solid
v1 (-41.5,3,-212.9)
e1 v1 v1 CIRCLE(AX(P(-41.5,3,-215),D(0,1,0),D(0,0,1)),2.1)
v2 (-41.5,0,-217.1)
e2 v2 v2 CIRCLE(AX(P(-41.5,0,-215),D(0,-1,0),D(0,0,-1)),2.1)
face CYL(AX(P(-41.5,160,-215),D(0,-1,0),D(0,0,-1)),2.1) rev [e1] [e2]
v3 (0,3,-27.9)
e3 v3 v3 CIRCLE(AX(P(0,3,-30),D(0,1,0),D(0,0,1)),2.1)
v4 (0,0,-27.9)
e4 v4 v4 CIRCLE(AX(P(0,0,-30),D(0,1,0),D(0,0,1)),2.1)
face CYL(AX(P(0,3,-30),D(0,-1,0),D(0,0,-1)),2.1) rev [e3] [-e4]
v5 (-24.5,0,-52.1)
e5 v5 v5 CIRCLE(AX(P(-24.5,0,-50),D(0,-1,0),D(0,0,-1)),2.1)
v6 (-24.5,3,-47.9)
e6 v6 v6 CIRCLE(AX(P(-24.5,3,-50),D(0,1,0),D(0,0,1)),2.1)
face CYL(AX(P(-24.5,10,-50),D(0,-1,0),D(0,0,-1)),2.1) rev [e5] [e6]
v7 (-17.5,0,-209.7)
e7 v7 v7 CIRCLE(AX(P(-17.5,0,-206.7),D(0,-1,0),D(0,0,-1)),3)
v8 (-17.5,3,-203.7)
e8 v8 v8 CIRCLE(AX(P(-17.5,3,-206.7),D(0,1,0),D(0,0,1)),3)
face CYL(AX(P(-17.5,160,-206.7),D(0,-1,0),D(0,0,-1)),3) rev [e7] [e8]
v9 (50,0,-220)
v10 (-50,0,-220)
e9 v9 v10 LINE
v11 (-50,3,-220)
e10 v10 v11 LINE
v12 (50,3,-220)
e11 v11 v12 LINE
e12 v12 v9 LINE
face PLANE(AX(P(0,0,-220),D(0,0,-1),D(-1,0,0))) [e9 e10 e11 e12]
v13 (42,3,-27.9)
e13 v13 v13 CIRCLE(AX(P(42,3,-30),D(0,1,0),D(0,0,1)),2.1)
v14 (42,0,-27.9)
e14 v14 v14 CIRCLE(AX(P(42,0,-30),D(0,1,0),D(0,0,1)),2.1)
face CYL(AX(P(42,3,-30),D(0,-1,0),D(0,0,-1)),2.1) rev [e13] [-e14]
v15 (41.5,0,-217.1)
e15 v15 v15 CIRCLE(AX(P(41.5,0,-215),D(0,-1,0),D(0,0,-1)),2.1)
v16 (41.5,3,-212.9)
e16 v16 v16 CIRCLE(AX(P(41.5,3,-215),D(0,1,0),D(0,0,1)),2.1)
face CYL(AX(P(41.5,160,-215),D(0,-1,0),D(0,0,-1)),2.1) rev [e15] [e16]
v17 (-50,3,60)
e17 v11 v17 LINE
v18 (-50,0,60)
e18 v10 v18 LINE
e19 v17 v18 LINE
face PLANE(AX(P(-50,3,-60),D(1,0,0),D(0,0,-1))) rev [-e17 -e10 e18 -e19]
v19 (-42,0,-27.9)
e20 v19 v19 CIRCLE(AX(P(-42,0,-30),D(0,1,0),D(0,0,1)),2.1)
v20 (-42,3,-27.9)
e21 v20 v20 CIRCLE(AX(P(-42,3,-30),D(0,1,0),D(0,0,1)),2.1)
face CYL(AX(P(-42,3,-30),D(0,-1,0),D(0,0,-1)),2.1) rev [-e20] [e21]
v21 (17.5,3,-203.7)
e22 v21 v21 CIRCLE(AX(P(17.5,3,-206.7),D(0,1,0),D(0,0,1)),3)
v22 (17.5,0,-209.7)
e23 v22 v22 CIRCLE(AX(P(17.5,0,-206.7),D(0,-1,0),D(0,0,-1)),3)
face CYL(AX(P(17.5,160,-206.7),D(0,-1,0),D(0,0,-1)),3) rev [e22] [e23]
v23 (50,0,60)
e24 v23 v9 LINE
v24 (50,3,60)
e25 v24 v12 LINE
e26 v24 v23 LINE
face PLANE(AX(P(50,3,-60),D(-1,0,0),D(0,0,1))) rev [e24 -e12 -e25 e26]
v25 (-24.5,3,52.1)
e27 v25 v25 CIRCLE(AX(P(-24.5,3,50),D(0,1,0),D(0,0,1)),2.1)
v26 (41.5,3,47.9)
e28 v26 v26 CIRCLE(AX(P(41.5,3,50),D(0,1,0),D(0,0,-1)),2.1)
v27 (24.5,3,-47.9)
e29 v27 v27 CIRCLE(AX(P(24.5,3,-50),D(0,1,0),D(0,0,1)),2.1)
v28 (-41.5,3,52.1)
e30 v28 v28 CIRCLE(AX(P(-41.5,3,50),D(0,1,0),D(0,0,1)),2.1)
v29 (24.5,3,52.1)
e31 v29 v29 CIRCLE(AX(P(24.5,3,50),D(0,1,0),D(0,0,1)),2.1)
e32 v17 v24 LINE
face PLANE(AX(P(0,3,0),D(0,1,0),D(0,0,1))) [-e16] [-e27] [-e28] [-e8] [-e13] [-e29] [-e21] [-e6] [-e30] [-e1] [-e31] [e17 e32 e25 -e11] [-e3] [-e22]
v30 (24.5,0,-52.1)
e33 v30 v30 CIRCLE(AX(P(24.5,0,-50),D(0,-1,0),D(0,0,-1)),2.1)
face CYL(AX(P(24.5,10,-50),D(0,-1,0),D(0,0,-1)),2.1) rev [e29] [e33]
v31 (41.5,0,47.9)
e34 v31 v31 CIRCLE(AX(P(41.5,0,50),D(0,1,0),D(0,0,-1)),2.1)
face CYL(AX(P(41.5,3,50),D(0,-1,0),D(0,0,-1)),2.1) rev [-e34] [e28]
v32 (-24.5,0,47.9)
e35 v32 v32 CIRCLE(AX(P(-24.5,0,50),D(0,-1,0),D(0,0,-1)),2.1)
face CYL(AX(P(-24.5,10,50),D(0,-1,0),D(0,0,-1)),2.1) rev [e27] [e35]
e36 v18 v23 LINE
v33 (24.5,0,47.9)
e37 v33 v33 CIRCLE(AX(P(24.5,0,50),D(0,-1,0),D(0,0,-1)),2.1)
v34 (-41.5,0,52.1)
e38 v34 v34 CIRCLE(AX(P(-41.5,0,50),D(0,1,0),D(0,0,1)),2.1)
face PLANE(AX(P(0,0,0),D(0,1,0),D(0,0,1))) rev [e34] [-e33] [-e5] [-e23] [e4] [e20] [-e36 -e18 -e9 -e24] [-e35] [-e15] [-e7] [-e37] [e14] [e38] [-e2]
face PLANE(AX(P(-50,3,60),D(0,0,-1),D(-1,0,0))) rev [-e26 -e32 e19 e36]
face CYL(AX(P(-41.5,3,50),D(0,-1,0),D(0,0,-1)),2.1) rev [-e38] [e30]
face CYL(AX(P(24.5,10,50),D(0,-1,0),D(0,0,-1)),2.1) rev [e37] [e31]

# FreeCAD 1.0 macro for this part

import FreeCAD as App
import Part
import Sketcher
Q = App.Units.Quantity

doc = App.newDocument("Part")
body = doc.addObject("PartDesign::Body", "Body")

sketch1 = body.newObject("Sketcher::SketchObject", "Sketch")
sketch1.AttachmentSupport = (doc.getObject("XZ_Plane"), [""])
sketch1.MapMode = "FlatFace"
sketch1.addGeometry(Part.LineSegment(App.Vector(-50, -60, 0), App.Vector(-50, 60, 0)), False)
sketch1.addGeometry(Part.LineSegment(App.Vector(-50, 60, 0), App.Vector(50, 60, 0)), False)
sketch1.addGeometry(Part.LineSegment(App.Vector(50, 60, 0), App.Vector(50, -60, 0)), False)
sketch1.addGeometry(Part.LineSegment(App.Vector(50, -60, 0), App.Vector(-50, -60, 0)), False)
sketch1.addGeometry(Part.Circle(App.Vector(-41.5, 50, 0), App.Vector(0, 0, 1), 2.1), False)
sketch1.addGeometry(Part.Circle(App.Vector(41.5, 50, 0), App.Vector(0, 0, 1), 2.1), False)
sketch1.addGeometry(Part.Circle(App.Vector(-42, -30, 0), App.Vector(0, 0, 1), 2.1), False)
sketch1.addGeometry(Part.Circle(App.Vector(0, -30, 0), App.Vector(0, 0, 1), 2.1), False)
sketch1.addGeometry(Part.Circle(App.Vector(42, -30, 0), App.Vector(0, 0, 1), 2.1), False)
sketch1.addConstraint(Sketcher.Constraint("Coincident", 0, 2, 1, 1))
sketch1.addConstraint(Sketcher.Constraint("Coincident", 1, 2, 2, 1))
sketch1.addConstraint(Sketcher.Constraint("Coincident", 2, 2, 3, 1))
sketch1.addConstraint(Sketcher.Constraint("Coincident", 3, 2, 0, 1))
sketch1.addConstraint(Sketcher.Constraint("Vertical", 0))
sketch1.addConstraint(Sketcher.Constraint("Horizontal", 1))
sketch1.addConstraint(Sketcher.Constraint("Vertical", 2))
sketch1.addConstraint(Sketcher.Constraint("Horizontal", 3))
sketch1.addConstraint(Sketcher.Constraint("Equal", 4, 5))
sketch1.addConstraint(Sketcher.Constraint("Equal", 5, 6))
sketch1.addConstraint(Sketcher.Constraint("Equal", 6, 7))
sketch1.addConstraint(Sketcher.Constraint("Equal", 7, 8))
sketch1.addConstraint(Sketcher.Constraint("Symmetric", 0, 2, 2, 2, -1, 1))
sketch1.addConstraint(Sketcher.Constraint("Symmetric", 4, 3, 5, 3, -2))
sketch1.addConstraint(Sketcher.Constraint("Symmetric", 6, 3, 8, 3, -2))
sketch1.addConstraint(Sketcher.Constraint("PointOnObject", 7, 3, -2))
sketch1.addConstraint(Sketcher.Constraint("Horizontal", 6, 3, 7, 3))
sketch1.addConstraint(Sketcher.Constraint("Diameter", 4, Q("4.2 mm")))
sketch1.addConstraint(Sketcher.Constraint("DistanceX", 1, 1, 1, 2, Q("100 mm")))
sketch1.addConstraint(Sketcher.Constraint("DistanceY", 0, 1, 0, 2, Q("120 mm")))
sketch1.addConstraint(Sketcher.Constraint("DistanceY", -1, 1, 4, 3, Q("50 mm")))
sketch1.addConstraint(Sketcher.Constraint("DistanceX", 6, 3, -1, 1, Q("42 mm")))
sketch1.addConstraint(Sketcher.Constraint("DistanceY", 6, 3, -1, 1, Q("30 mm")))
sketch1.addConstraint(Sketcher.Constraint("DistanceX", 4, 3, 5, 3, Q("83 mm")))
pad1 = body.newObject("PartDesign::Pad", "Pad")
pad1.Profile = sketch1
pad1.Length = 3
pad1.Reversed = True

sketch2 = body.newObject("Sketcher::SketchObject", "Sketch001")
sketch2.AttachmentSupport = (doc.getObject("XZ_Plane"), [""])
sketch2.MapMode = "FlatFace"
sketch2.addGeometry(Part.Circle(App.Vector(-24.5, -50, 0), App.Vector(0, 0, 1), 2.1), False)
sketch2.addGeometry(Part.Circle(App.Vector(24.5, -50, 0), App.Vector(0, 0, 1), 2.1), False)
sketch2.addGeometry(Part.Circle(App.Vector(24.5, 50, 0), App.Vector(0, 0, 1), 2.1), False)
sketch2.addGeometry(Part.Circle(App.Vector(-24.5, 50, 0), App.Vector(0, 0, 1), 2.1), False)
sketch2.addConstraint(Sketcher.Constraint("Equal", 0, 1))
sketch2.addConstraint(Sketcher.Constraint("Equal", 1, 2))
sketch2.addConstraint(Sketcher.Constraint("Equal", 2, 3))
sketch2.addConstraint(Sketcher.Constraint("Symmetric", 0, 3, 2, 3, -1, 1))
sketch2.addConstraint(Sketcher.Constraint("Symmetric", 1, 3, 3, 3, -1, 1))
sketch2.addConstraint(Sketcher.Constraint("Symmetric", 0, 3, 1, 3, -2))
sketch2.addConstraint(Sketcher.Constraint("Diameter", 0, Q("4.2 mm")))
sketch2.addConstraint(Sketcher.Constraint("DistanceY", 0, 3, -1, 1, Q("50 mm")))
sketch2.addConstraint(Sketcher.Constraint("DistanceX", 0, 3, 1, 3, Q("49 mm")))
pocket1 = body.newObject("PartDesign::Pocket", "Pocket")
pocket1.Profile = sketch2
pocket1.Length = 10

sketch3 = body.newObject("Sketcher::SketchObject", "Sketch002")
sketch3.AttachmentSupport = (doc.getObject("XY_Plane"), [""])
sketch3.MapMode = "FlatFace"
sketch3.AttachmentOffset = App.Placement(App.Vector(0, 0, -60), App.Rotation())
sketch3.addGeometry(Part.LineSegment(App.Vector(50, 3, 0), App.Vector(50, 0, 0)), False)
sketch3.addGeometry(Part.LineSegment(App.Vector(50, 0, 0), App.Vector(-50, 0, 0)), False)
sketch3.addGeometry(Part.LineSegment(App.Vector(-50, 0, 0), App.Vector(-50, 3, 0)), False)
sketch3.addGeometry(Part.LineSegment(App.Vector(-50, 3, 0), App.Vector(50, 3, 0)), False)
sketch3.addConstraint(Sketcher.Constraint("Coincident", 0, 2, 1, 1))
sketch3.addConstraint(Sketcher.Constraint("Coincident", 1, 2, 2, 1))
sketch3.addConstraint(Sketcher.Constraint("Coincident", 2, 2, 3, 1))
sketch3.addConstraint(Sketcher.Constraint("Coincident", 3, 2, 0, 1))
sketch3.addConstraint(Sketcher.Constraint("Vertical", 0))
sketch3.addConstraint(Sketcher.Constraint("Horizontal", 1))
sketch3.addConstraint(Sketcher.Constraint("Vertical", 2))
sketch3.addConstraint(Sketcher.Constraint("Horizontal", 3))
sketch3.addConstraint(Sketcher.Constraint("Symmetric", 0, 2, 1, 2, -1, 1))
sketch3.addConstraint(Sketcher.Constraint("DistanceX", 1, 2, 1, 1, Q("100 mm")))
sketch3.addConstraint(Sketcher.Constraint("DistanceY", 0, 2, 0, 1, Q("3 mm")))
pad2 = body.newObject("PartDesign::Pad", "Pad001")
pad2.Profile = sketch3
pad2.Length = 160
pad2.Reversed = True

sketch4 = body.newObject("Sketcher::SketchObject", "Sketch003")
sketch4.AttachmentSupport = (doc.getObject("XZ_Plane"), [""])
sketch4.MapMode = "FlatFace"
sketch4.addGeometry(Part.Circle(App.Vector(17.5, -206.7, 0), App.Vector(0, 0, 1), 3), False)
sketch4.addGeometry(Part.Circle(App.Vector(-17.5, -206.7, 0), App.Vector(0, 0, 1), 3), False)
sketch4.addGeometry(Part.Circle(App.Vector(-41.5, -215, 0), App.Vector(0, 0, 1), 2.1), False)
sketch4.addGeometry(Part.Circle(App.Vector(41.5, -215, 0), App.Vector(0, 0, 1), 2.1), False)
sketch4.addConstraint(Sketcher.Constraint("Equal", 0, 1))
sketch4.addConstraint(Sketcher.Constraint("Equal", 2, 3))
sketch4.addConstraint(Sketcher.Constraint("Symmetric", 0, 3, 1, 3, -2))
sketch4.addConstraint(Sketcher.Constraint("Symmetric", 2, 3, 3, 3, -2))
sketch4.addConstraint(Sketcher.Constraint("Diameter", 0, Q("6 mm")))
sketch4.addConstraint(Sketcher.Constraint("Diameter", 2, Q("4.2 mm")))
sketch4.addConstraint(Sketcher.Constraint("DistanceY", 2, 3, -1, 1, Q("215 mm")))
sketch4.addConstraint(Sketcher.Constraint("DistanceX", 1, 3, 0, 3, Q("35 mm")))
sketch4.addConstraint(Sketcher.Constraint("DistanceX", 2, 3, 1, 3, Q("24 mm")))
sketch4.addConstraint(Sketcher.Constraint("DistanceY", 0, 3, -1, 1, Q("206.7 mm")))
pocket2 = body.newObject("PartDesign::Pocket", "Pocket001")
pocket2.Profile = sketch4
pocket2.Length = 160

doc.recompute()
